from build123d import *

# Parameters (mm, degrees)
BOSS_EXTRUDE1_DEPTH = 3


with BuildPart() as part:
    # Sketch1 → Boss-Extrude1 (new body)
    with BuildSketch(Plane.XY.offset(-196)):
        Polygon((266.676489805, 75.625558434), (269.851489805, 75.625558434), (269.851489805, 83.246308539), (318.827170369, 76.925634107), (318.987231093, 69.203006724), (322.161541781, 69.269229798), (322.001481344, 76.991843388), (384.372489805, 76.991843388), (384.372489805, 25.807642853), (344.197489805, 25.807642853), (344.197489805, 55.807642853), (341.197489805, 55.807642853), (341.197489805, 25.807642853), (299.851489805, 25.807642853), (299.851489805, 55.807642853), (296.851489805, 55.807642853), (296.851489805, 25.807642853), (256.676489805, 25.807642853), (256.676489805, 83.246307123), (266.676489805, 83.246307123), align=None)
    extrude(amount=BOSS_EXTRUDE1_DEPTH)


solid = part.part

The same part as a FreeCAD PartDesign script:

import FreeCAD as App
import Part
import Sketcher
Q = App.Units.Quantity


def add_polygon(sketch, points):
    """Adds a closed chain of lines whose ends are joined by coincident constraints."""
    first, n = sketch.GeometryCount, len(points)
    for a, b in zip(points, points[1:] + points[:1]):
        sketch.addGeometry(Part.LineSegment(App.Vector(*a, 0), App.Vector(*b, 0)), False)
    for i in range(n):
        sketch.addConstraint(Sketcher.Constraint("Coincident", first + i, 2, first + (i + 1) % n, 1))

doc = App.newDocument("Part")
body = doc.addObject("PartDesign::Body", "Body")

sketch1 = body.newObject("Sketcher::SketchObject", "Sketch")
sketch1.AttachmentSupport = (doc.getObject("XY_Plane"), [""])
sketch1.MapMode = "FlatFace"
sketch1.AttachmentOffset = App.Placement(App.Vector(0, 0, -196), App.Rotation())
add_polygon(sketch1, [(269.85149, 75.625558), (266.67649, 75.625558), (266.67649, 83.246307), (256.67649, 83.246307), (256.67649, 25.807643), (296.85149, 25.807643), (296.85149, 55.807643), (299.85149, 55.807643), (299.85149, 25.807643), (341.19749, 25.807643), (341.19749, 55.807643), (344.19749, 55.807643), (344.19749, 25.807643), (384.37249, 25.807643), (384.37249, 76.991843), (322.001481, 76.991843), (322.161542, 69.26923), (318.987231, 69.203007), (318.82717, 76.925634), (269.85149, 83.246309)])
sketch1.addConstraint([
    Sketcher.Constraint("Horizontal", 0),
    Sketcher.Constraint("Vertical", 1),
    Sketcher.Constraint("Horizontal", 2),
    Sketcher.Constraint("Vertical", 3),
    Sketcher.Constraint("Horizontal", 4),
    Sketcher.Constraint("Vertical", 5),
    Sketcher.Constraint("Horizontal", 6),
    Sketcher.Constraint("Vertical", 7),
    Sketcher.Constraint("Horizontal", 8),
    Sketcher.Constraint("Vertical", 9),
    Sketcher.Constraint("Horizontal", 10),
    Sketcher.Constraint("Vertical", 11),
    Sketcher.Constraint("Horizontal", 12),
    Sketcher.Constraint("Vertical", 13),
    Sketcher.Constraint("Horizontal", 14),
    Sketcher.Constraint("Vertical", 19),
    Sketcher.Constraint("Parallel", 15, 17),
    Sketcher.Constraint("Horizontal", 4, 2, 7, 2),
    Sketcher.Constraint("Horizontal", 6, 2, 9, 2),
    Sketcher.Constraint("Horizontal", 8, 2, 11, 2),
    Sketcher.Constraint("Horizontal", 2, 2, 18, 2),
    Sketcher.Constraint("Equal", 6, 10),
    Sketcher.Constraint("Equal", 4, 12),
    Sketcher.Constraint("DistanceX", 2, 2, 2, 1, Q("10 mm")),
    Sketcher.Constraint("DistanceX", 6, 1, 6, 2, Q("3 mm")),
    Sketcher.Constraint("DistanceY", 5, 1, 5, 2, Q("30 mm")),
    Sketcher.Constraint("DistanceX", 18, 2, 5, 2, Q("27 mm")),
    Sketcher.Constraint("DistanceX", 0, 2, 0, 1, Q("3.175 mm")),
    Sketcher.Constraint("DistanceX", 8, 1, 8, 2, Q("41.346 mm")),
    Sketcher.Constraint("Distance", 16, Q("3.175001 mm")),
    Sketcher.Constraint("DistanceY", 13, 1, 13, 2, Q("51.184201 mm")),
    Sketcher.Constraint("DistanceX", 14, 2, 14, 1, Q("62.371008 mm")),
    Sketcher.Constraint("DistanceY", 1, 1, 1, 2, Q("7.620749 mm")),
    Sketcher.Constraint("Distance", 18, Q("49.381861 mm")),
    Sketcher.Constraint("DistanceY", 3, 2, 3, 1, Q("57.438664 mm")),
    Sketcher.Constraint("DistanceX", -1, 1, 0, 2, Q("266.67649 mm")),
    Sketcher.Constraint("DistanceY", -1, 1, 0, 2, Q("75.625558 mm")),
    Sketcher.Constraint("DistanceX", -1, 1, 15, 2, Q("322.161542 mm")),
    Sketcher.Constraint("DistanceY", -1, 1, 15, 2, Q("69.26923 mm")),
    Sketcher.Constraint("DistanceX", -1, 1, 16, 2, Q("318.987231 mm")),
])
pad1 = body.newObject("PartDesign::Pad", "Pad")
pad1.Profile = sketch1
pad1.Length = 3

doc.recompute()
